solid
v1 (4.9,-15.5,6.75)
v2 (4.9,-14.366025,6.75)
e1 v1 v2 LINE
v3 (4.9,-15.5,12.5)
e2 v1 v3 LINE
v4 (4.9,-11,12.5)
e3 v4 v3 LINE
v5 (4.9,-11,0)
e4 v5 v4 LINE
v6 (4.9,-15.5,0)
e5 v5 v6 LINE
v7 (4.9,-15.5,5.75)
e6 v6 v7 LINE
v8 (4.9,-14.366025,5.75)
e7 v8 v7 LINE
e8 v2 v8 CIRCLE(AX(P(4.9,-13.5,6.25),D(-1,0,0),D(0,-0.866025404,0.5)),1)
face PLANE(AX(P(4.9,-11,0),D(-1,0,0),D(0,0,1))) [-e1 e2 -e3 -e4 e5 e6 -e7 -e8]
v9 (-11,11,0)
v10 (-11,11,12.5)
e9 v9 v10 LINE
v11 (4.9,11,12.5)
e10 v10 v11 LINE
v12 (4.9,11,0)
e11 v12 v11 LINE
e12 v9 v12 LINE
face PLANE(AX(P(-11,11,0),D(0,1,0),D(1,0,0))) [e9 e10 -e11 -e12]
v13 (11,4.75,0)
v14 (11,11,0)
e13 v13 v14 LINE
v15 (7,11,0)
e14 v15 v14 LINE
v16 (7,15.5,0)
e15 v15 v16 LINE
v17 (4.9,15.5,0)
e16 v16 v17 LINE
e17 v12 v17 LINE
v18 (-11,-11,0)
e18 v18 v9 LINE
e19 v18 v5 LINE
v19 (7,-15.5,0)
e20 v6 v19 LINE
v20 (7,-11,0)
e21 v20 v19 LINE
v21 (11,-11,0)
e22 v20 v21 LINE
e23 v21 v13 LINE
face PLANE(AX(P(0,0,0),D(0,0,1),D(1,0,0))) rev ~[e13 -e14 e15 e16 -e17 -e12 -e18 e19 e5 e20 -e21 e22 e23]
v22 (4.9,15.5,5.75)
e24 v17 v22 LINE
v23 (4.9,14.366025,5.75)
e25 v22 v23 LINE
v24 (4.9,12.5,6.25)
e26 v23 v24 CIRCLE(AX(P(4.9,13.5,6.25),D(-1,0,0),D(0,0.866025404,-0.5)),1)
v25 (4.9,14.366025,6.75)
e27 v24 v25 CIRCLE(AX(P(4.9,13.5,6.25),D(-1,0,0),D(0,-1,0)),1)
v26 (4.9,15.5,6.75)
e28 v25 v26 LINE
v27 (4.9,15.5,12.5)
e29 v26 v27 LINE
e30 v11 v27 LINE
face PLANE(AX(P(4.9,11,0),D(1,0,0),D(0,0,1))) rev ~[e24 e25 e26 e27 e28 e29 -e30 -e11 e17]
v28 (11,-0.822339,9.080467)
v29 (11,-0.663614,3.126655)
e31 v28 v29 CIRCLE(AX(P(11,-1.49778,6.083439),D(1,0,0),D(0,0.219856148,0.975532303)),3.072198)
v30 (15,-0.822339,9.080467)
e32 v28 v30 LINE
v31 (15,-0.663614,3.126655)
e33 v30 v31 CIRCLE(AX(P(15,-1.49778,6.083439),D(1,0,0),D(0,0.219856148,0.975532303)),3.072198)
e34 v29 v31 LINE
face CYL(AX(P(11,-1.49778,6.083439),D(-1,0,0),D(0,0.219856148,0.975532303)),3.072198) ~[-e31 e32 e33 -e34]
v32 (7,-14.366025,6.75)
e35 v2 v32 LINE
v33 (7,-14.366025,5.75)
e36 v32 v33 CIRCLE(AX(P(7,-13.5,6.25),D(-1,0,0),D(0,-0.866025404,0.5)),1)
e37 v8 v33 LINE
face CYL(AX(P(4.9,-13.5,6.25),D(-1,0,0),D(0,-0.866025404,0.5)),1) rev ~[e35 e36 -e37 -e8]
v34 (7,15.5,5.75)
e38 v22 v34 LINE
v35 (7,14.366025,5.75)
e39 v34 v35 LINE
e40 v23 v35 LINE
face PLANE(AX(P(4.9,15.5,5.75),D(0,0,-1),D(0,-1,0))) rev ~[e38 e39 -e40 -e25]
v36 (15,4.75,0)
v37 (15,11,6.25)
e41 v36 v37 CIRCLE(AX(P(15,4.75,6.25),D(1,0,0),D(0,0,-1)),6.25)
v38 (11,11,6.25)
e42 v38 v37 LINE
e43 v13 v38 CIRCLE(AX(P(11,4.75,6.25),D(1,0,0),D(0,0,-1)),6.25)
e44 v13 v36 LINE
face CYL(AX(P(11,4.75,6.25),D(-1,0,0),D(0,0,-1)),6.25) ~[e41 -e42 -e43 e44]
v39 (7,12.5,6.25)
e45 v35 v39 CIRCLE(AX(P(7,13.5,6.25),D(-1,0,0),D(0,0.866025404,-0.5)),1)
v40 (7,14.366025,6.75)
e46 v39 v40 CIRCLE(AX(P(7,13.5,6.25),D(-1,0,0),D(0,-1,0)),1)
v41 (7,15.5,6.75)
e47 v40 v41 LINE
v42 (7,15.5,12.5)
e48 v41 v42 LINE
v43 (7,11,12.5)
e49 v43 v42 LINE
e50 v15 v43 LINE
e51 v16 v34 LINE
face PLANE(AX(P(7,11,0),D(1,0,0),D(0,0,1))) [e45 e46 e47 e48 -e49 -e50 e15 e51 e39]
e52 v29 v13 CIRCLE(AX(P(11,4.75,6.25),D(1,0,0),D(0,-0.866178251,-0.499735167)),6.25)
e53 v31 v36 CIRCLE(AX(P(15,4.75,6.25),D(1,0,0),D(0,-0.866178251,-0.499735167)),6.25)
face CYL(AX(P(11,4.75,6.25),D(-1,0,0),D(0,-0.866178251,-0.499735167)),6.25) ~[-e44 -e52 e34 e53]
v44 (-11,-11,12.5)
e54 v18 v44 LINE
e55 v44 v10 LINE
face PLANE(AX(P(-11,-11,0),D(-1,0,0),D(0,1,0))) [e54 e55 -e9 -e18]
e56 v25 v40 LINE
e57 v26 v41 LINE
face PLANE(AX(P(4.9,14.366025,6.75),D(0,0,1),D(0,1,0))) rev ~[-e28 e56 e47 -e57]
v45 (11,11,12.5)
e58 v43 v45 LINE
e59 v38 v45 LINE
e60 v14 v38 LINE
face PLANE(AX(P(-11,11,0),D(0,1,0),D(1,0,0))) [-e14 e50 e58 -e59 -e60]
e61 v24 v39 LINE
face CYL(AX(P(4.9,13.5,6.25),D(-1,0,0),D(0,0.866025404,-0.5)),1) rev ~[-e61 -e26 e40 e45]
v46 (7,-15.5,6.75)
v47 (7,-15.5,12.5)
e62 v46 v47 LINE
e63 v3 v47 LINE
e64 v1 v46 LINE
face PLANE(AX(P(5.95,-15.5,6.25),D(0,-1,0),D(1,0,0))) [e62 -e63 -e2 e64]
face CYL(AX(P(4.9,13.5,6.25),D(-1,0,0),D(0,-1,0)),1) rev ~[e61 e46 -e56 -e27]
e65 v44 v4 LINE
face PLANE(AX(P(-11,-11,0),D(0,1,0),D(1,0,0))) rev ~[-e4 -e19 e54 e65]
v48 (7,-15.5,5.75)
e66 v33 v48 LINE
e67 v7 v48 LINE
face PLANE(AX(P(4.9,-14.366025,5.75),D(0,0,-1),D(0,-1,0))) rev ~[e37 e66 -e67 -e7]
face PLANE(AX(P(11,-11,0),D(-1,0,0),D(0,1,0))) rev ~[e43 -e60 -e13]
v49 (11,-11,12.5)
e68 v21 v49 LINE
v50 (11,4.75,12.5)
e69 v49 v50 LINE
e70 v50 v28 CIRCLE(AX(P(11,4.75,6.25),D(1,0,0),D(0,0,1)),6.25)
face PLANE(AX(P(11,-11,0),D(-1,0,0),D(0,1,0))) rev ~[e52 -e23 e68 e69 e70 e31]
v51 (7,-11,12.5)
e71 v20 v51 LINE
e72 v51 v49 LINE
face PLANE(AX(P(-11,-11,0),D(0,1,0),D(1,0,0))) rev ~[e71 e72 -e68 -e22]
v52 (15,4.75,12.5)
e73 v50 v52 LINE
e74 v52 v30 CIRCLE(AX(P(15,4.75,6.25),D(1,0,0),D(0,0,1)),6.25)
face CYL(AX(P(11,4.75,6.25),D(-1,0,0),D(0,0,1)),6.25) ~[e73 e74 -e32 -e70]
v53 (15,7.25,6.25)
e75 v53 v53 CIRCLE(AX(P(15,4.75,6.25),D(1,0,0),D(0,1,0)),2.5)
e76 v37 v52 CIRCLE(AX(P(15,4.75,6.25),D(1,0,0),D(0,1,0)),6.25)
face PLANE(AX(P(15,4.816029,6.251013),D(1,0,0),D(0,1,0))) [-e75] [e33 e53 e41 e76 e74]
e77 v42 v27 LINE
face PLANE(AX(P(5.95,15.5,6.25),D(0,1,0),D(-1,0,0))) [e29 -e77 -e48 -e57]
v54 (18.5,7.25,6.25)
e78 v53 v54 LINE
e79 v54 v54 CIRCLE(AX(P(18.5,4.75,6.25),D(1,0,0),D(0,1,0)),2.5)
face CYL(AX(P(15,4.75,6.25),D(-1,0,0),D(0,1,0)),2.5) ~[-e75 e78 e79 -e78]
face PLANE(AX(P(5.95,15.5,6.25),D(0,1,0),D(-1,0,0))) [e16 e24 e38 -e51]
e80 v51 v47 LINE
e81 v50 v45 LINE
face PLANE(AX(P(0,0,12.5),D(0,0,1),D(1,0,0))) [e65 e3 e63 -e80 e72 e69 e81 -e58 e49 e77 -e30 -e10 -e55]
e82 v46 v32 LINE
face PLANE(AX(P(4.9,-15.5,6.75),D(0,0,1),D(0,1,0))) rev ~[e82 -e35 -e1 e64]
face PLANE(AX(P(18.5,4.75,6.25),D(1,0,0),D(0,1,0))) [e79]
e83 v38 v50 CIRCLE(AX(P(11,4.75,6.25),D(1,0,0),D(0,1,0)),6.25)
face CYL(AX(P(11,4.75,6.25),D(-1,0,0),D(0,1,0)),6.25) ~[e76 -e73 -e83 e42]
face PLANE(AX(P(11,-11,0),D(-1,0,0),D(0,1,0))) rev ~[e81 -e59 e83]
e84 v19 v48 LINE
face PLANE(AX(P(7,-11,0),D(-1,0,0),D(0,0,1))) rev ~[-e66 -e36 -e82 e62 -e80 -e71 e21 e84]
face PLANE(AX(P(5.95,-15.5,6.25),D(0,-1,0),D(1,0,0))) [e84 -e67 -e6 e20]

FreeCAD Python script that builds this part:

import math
import FreeCAD as App
import Part
import Sketcher
from FreeCAD import Vector
Q = App.Units.Quantity

doc = App.newDocument("Part")
body = doc.addObject("PartDesign::Body", "Body")

# Sketch on XY plane
sketch1 = body.newObject("Sketcher::SketchObject", "Sketch")
sketch1.AttachmentSupport = (doc.getObject("XY_Plane"), [""])
sketch1.MapMode = "FlatFace"
sketch1.addGeometry([
    Part.LineSegment(Vector(-11, 11, 0), Vector(-11, -11, 0)),
    Part.LineSegment(Vector(-11, -11, 0), Vector(11, -11, 0)),
    Part.LineSegment(Vector(11, -11, 0), Vector(11, 11, 0)),
    Part.LineSegment(Vector(11, 11, 0), Vector(-11, 11, 0)),
], False)
sketch1.addConstraint([
    Sketcher.Constraint("Coincident", 0, 2, 1, 1),
    Sketcher.Constraint("Coincident", 1, 2, 2, 1),
    Sketcher.Constraint("Coincident", 2, 2, 3, 1),
    Sketcher.Constraint("Coincident", 3, 2, 0, 1),
    Sketcher.Constraint("Vertical", 0),
    Sketcher.Constraint("Horizontal", 1),
    Sketcher.Constraint("Vertical", 2),
    Sketcher.Constraint("Horizontal", 3),
    Sketcher.Constraint("Symmetric", 0, 2, 2, 2, -1, 1),
    Sketcher.Constraint("Equal", 3, 0),
    Sketcher.Constraint("DistanceX", 1, 1, 1, 2, Q("22 mm")),
])
pad1 = body.newObject("PartDesign::Pad", "Pad")
pad1.Profile = sketch1
pad1.Length = 12.5

# Sketch on YZ plane
sketch2 = body.newObject("Sketcher::SketchObject", "Sketch001")
sketch2.AttachmentSupport = (doc.getObject("YZ_Plane"), [""])
sketch2.MapMode = "FlatFace"
sketch2.AttachmentOffset = App.Placement(Vector(0, 0, 11), App.Rotation())
sketch2.addGeometry([
    Part.ArcOfCircle(Part.Circle(Vector(4.8, 6.2, 0), Vector(0, 0, 1), 6.2), math.radians(-150), math.radians(-90)),  # 0
    Part.ArcOfCircle(Part.Circle(Vector(4.8, 6.2, 0), Vector(0, 0, 1), 6.2), math.radians(-90), math.radians(0)),  # 1
    Part.ArcOfCircle(Part.Circle(Vector(4.8, 6.2, 0), Vector(0, 0, 1), 6.2), math.radians(0), math.radians(90)),  # 2
    Part.ArcOfCircle(Part.Circle(Vector(4.8, 6.2, 0), Vector(0, 0, 1), 6.2), math.radians(90), math.radians(153)),  # 3
    Part.ArcOfCircle(Part.Circle(Vector(-1.5, 6.1, 0), Vector(0, 0, 1), 3.1), math.radians(77), math.radians(286)),  # 4
], False)
sketch2.addConstraint([
    Sketcher.Constraint("Tangent", 0, 2, 1, 1),
    Sketcher.Constraint("Tangent", 1, 2, 2, 1),
    Sketcher.Constraint("Tangent", 2, 2, 3, 1),
    Sketcher.Constraint("Coincident", 3, 2, 4, 1),
    Sketcher.Constraint("Coincident", 4, 2, 0, 1),
    Sketcher.Constraint("Coincident", 2, 3, 0, 3),
    Sketcher.Constraint("Equal", 2, 3),
    Sketcher.Constraint("PointOnObject", 0, 2, -1),
    Sketcher.Constraint("Horizontal", 3, 3, 1, 2),
    Sketcher.Constraint("Vertical", 3, 3, 0, 2),
    Sketcher.Constraint("Vertical", 0, 2, 2, 2),
    Sketcher.Constraint("Radius", 0, Q("6.25 mm")),
    Sketcher.Constraint("DistanceX", -1, 1, 1, 2, Q("11 mm")),
    Sketcher.Constraint("Radius", 4, Q("3.072198 mm")),
    Sketcher.Constraint("DistanceX", 4, 3, -1, 1, Q("1.49778 mm")),
    Sketcher.Constraint("DistanceY", -1, 1, 4, 3, Q("6.083439 mm")),
])
pad2 = body.newObject("PartDesign::Pad", "Pad001")
pad2.Profile = sketch2
pad2.Length = 4

# Sketch on YZ plane
sketch3 = body.newObject("Sketcher::SketchObject", "Sketch002")
sketch3.AttachmentSupport = (doc.getObject("YZ_Plane"), [""])
sketch3.MapMode = "FlatFace"
sketch3.AttachmentOffset = App.Placement(Vector(0, 0, 15), App.Rotation())
sketch3.addGeometry(Part.Circle(Vector(4.8, 6.2, 0), Vector(0, 0, 1), 2.5), False)
sketch3.addConstraint([
    Sketcher.Constraint("Diameter", 0, Q("5 mm")),
    Sketcher.Constraint("DistanceX", -1, 1, 0, 3, Q("4.75 mm")),
    Sketcher.Constraint("DistanceY", -1, 1, 0, 3, Q("6.25 mm")),
])
pad3 = body.newObject("PartDesign::Pad", "Pad002")
pad3.Profile = sketch3
pad3.Length = 3.5

# Sketch on XZ plane
sketch4 = body.newObject("Sketcher::SketchObject", "Sketch003")
sketch4.AttachmentSupport = (doc.getObject("XZ_Plane"), [""])
sketch4.MapMode = "FlatFace"
sketch4.AttachmentOffset = App.Placement(Vector(0, 0, 11), App.Rotation())
sketch4.addGeometry([
    Part.LineSegment(Vector(4.9, 12.5, 0), Vector(4.9, 0, 0)),
    Part.LineSegment(Vector(4.9, 0, 0), Vector(7, 0, 0)),
    Part.LineSegment(Vector(7, 0, 0), Vector(7, 12.5, 0)),
    Part.LineSegment(Vector(7, 12.5, 0), Vector(4.9, 12.5, 0)),
], False)
sketch4.addConstraint([
    Sketcher.Constraint("Coincident", 0, 2, 1, 1),
    Sketcher.Constraint("Coincident", 1, 2, 2, 1),
    Sketcher.Constraint("Coincident", 2, 2, 3, 1),
    Sketcher.Constraint("Coincident", 3, 2, 0, 1),
    Sketcher.Constraint("Vertical", 0),
    Sketcher.Constraint("Horizontal", 1),
    Sketcher.Constraint("Vertical", 2),
    Sketcher.Constraint("Horizontal", 3),
    Sketcher.Constraint("PointOnObject", 0, 2, -1),
    Sketcher.Constraint("DistanceX", 1, 1, 1, 2, Q("2.1 mm")),
    Sketcher.Constraint("DistanceY", 0, 2, 0, 1, Q("12.5 mm")),
    Sketcher.Constraint("DistanceX", -1, 1, 1, 2, Q("7 mm")),
])
pad4 = body.newObject("PartDesign::Pad", "Pad003")
pad4.Profile = sketch4
pad4.Length = 4.5

# Sketch on YZ plane
sketch5 = body.newObject("Sketcher::SketchObject", "Sketch004")
sketch5.AttachmentSupport = (doc.getObject("YZ_Plane"), [""])
sketch5.MapMode = "FlatFace"
sketch5.AttachmentOffset = App.Placement(Vector(0, 0, 4.9), App.Rotation())
sketch5.addGeometry([
    Part.LineSegment(Vector(-14.4, 5.8, 0), Vector(-15.5, 5.8, 0)),
    Part.LineSegment(Vector(-15.5, 5.8, 0), Vector(-15.5, 6.8, 0)),
    Part.LineSegment(Vector(-15.5, 6.8, 0), Vector(-14.4, 6.8, 0)),
    Part.ArcOfCircle(Part.Circle(Vector(-13.5, 6.2, 0), Vector(0, 0, 1), 1), math.radians(-150), math.radians(150)),
], False)
sketch5.addConstraint([
    Sketcher.Constraint("Coincident", 0, 2, 1, 1),
    Sketcher.Constraint("Coincident", 1, 2, 2, 1),
    Sketcher.Constraint("Coincident", 2, 2, 3, 2),
    Sketcher.Constraint("Coincident", 3, 1, 0, 1),
    Sketcher.Constraint("Horizontal", 0),
    Sketcher.Constraint("Vertical", 1),
    Sketcher.Constraint("Horizontal", 2),
    Sketcher.Constraint("Vertical", 2, 2, 3, 1),
    Sketcher.Constraint("Radius", 3, Q("1 mm")),
    Sketcher.Constraint("DistanceY", 1, 1, 1, 2, Q("1 mm")),
    Sketcher.Constraint("DistanceX", 0, 2, 3, 3, Q("2 mm")),
    Sketcher.Constraint("DistanceX", 3, 3, -1, 1, Q("13.5 mm")),
    Sketcher.Constraint("DistanceY", -1, 1, 3, 3, Q("6.25 mm")),
])
pocket1 = body.newObject("PartDesign::Pocket", "Pocket")
pocket1.Profile = sketch5
pocket1.Length = 2.1
pocket1.Reversed = True

# Sketch on XZ plane
sketch6 = body.newObject("Sketcher::SketchObject", "Sketch005")
sketch6.AttachmentSupport = (doc.getObject("XZ_Plane"), [""])
sketch6.MapMode = "FlatFace"
sketch6.AttachmentOffset = App.Placement(Vector(0, 0, -11), App.Rotation())
sketch6.addGeometry([
    Part.LineSegment(Vector(7, 12.5, 0), Vector(7, 0, 0)),
    Part.LineSegment(Vector(7, 0, 0), Vector(4.9, 0, 0)),
    Part.LineSegment(Vector(4.9, 0, 0), Vector(4.9, 12.5, 0)),
    Part.LineSegment(Vector(4.9, 12.5, 0), Vector(7, 12.5, 0)),
], False)
sketch6.addConstraint([
    Sketcher.Constraint("Coincident", 0, 2, 1, 1),
    Sketcher.Constraint("Coincident", 1, 2, 2, 1),
    Sketcher.Constraint("Coincident", 2, 2, 3, 1),
    Sketcher.Constraint("Coincident", 3, 2, 0, 1),
    Sketcher.Constraint("Vertical", 0),
    Sketcher.Constraint("Horizontal", 1),
    Sketcher.Constraint("Vertical", 2),
    Sketcher.Constraint("Horizontal", 3),
    Sketcher.Constraint("PointOnObject", 0, 2, -1),
    Sketcher.Constraint("DistanceX", 1, 2, 1, 1, Q("2.1 mm")),
    Sketcher.Constraint("DistanceY", 0, 2, 0, 1, Q("12.5 mm")),
    Sketcher.Constraint("DistanceX", -1, 1, 0, 2, Q("7 mm")),
])
pad5 = body.newObject("PartDesign::Pad", "Pad004")
pad5.Profile = sketch6
pad5.Length = 4.5
pad5.Reversed = True

# Sketch on YZ plane
sketch7 = body.newObject("Sketcher::SketchObject", "Sketch006")
sketch7.AttachmentSupport = (doc.getObject("YZ_Plane"), [""])
sketch7.MapMode = "FlatFace"
sketch7.AttachmentOffset = App.Placement(Vector(0, 0, 4.9), App.Rotation())
sketch7.addGeometry([
    Part.ArcOfCircle(Part.Circle(Vector(13.5, 6.2, 0), Vector(0, 0, 1), 1), math.radians(180), math.radians(330)),  # 0
    Part.ArcOfCircle(Part.Circle(Vector(13.5, 6.2, 0), Vector(0, 0, 1), 1), math.radians(30), math.radians(180)),  # 1
    Part.LineSegment(Vector(14.4, 6.8, 0), Vector(15.5, 6.8, 0)),  # 2
    Part.LineSegment(Vector(15.5, 6.8, 0), Vector(15.5, 5.8, 0)),  # 3
    Part.LineSegment(Vector(15.5, 5.8, 0), Vector(14.4, 5.8, 0)),  # 4
], False)
sketch7.addConstraint([
    Sketcher.Constraint("Tangent", 0, 1, 1, 2),
    Sketcher.Constraint("Coincident", 1, 1, 2, 1),
    Sketcher.Constraint("Coincident", 2, 2, 3, 1),
    Sketcher.Constraint("Coincident", 3, 2, 4, 1),
    Sketcher.Constraint("Coincident", 4, 2, 0, 2),
    Sketcher.Constraint("Horizontal", 2),
    Sketcher.Constraint("Vertical", 3),
    Sketcher.Constraint("Horizontal", 4),
    Sketcher.Constraint("Equal", 0, 1),
    Sketcher.Constraint("Horizontal", 1, 3, 0, 1),
    Sketcher.Constraint("Vertical", 1, 1, 4, 2),
    Sketcher.Constraint("Radius", 0, Q("1 mm")),
    Sketcher.Constraint("DistanceY", 3, 2, 3, 1, Q("1 mm")),
    Sketcher.Constraint("DistanceX", 0, 3, 2, 2, Q("2 mm")),
    Sketcher.Constraint("DistanceX", -1, 1, 0, 3, Q("13.5 mm")),
    Sketcher.Constraint("DistanceY", -1, 1, 0, 3, Q("6.25 mm")),
])
pocket2 = body.newObject("PartDesign::Pocket", "Pocket001")
pocket2.Profile = sketch7
pocket2.Length = 2.1
pocket2.Reversed = True

doc.recompute()
